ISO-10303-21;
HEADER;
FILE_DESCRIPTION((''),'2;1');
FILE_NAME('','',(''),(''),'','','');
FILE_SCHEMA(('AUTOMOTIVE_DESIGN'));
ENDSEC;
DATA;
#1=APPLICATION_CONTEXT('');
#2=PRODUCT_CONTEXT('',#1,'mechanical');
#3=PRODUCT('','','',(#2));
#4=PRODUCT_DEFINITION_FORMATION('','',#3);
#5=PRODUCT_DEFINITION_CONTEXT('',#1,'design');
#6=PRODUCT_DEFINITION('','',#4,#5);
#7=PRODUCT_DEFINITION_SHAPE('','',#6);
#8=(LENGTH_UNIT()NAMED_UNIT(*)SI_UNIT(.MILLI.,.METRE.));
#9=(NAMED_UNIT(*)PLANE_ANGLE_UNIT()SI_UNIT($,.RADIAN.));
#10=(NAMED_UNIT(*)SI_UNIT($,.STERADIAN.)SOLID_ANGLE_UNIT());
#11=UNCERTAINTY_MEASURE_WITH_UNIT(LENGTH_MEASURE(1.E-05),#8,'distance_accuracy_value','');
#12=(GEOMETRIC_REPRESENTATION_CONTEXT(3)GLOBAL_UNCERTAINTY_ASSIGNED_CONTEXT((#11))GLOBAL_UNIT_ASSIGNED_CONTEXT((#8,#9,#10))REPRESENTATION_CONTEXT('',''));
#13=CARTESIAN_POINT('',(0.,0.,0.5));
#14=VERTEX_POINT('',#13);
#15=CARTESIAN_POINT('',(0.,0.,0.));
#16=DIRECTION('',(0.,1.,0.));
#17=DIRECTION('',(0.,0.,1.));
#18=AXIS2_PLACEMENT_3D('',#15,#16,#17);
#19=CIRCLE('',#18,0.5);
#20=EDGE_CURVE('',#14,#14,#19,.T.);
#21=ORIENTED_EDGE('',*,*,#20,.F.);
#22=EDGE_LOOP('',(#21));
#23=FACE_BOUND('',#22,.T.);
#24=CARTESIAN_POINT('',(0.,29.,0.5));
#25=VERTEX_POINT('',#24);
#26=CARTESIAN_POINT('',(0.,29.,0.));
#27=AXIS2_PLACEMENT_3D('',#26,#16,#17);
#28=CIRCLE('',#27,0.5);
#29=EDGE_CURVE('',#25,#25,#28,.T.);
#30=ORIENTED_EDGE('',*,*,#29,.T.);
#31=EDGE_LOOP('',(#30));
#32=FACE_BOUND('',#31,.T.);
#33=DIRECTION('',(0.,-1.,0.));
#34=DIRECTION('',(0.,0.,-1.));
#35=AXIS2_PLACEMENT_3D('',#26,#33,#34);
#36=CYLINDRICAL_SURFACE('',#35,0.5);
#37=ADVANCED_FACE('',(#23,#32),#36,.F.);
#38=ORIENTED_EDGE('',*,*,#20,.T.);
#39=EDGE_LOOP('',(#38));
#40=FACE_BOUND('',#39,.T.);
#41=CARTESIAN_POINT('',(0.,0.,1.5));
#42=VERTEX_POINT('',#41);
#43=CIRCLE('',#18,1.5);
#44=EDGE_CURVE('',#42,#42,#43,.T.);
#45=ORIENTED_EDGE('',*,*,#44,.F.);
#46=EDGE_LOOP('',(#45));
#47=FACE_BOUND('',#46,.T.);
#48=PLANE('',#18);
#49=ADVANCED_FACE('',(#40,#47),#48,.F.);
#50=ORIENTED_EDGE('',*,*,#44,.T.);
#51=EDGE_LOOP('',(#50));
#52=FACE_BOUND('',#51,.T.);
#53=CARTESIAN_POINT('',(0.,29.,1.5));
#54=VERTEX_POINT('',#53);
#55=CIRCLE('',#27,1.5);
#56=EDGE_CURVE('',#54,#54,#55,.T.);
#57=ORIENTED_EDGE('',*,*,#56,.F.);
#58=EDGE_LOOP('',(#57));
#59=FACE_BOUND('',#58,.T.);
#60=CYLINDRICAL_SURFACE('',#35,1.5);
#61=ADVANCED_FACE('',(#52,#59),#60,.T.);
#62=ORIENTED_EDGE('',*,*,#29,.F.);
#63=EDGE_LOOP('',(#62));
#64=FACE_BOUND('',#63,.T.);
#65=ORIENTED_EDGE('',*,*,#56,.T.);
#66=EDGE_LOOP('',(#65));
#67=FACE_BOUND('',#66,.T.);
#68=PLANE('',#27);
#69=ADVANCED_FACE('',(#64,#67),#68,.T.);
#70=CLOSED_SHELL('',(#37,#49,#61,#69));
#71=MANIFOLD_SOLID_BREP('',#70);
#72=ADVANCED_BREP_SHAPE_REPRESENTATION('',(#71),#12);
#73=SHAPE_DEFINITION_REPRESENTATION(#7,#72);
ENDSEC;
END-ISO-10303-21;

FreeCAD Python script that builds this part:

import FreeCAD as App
import Part
import Sketcher

doc = App.newDocument("Part")
params = doc.addObject("Spreadsheet::Sheet", "Params")
for row, (alias, value) in enumerate([
    ("sketch1_diameter", "3 mm"),
    ("sketch1_diameter2", "1 mm"),
    ("pad1_length", "29 mm"),
], start=1):
    params.set(f"A{row}", alias)
    params.set(f"B{row}", "=" + value)
    params.setAlias(f"B{row}", alias)

body = doc.addObject("PartDesign::Body", "Body")

# Sketch on XZ plane
sketch1 = doc.addObject("Sketcher::SketchObject", "Sketch")
body.addObject(sketch1)
sketch1.AttachmentSupport = (doc.XZ_Plane, [""])
sketch1.MapMode = "FlatFace"
sketch1.addGeometry([
    Part.Circle(App.Vector(0, 0, 0), App.Vector(0, 0, 1), 1.5),
    Part.Circle(App.Vector(0, 0, 0), App.Vector(0, 0, 1), 0.5),
], False)
sketch1.addConstraint([
    Sketcher.Constraint("Coincident", 0, 3, -1, 1),
    Sketcher.Constraint("Coincident", 1, 3, -1, 1),
    Sketcher.Constraint("Diameter", 0, 3.0),
    Sketcher.Constraint("Diameter", 1, 1.0),
])
sketch1.setExpression("Constraints[2]", "Params.sketch1_diameter")
sketch1.setExpression("Constraints[3]", "Params.sketch1_diameter2")
pad1 = doc.addObject("PartDesign::Pad", "Pad")
body.addObject(pad1)
pad1.Profile = sketch1
pad1.setExpression("Length", "Params.pad1_length")
pad1.Reversed = True

doc.recompute()
